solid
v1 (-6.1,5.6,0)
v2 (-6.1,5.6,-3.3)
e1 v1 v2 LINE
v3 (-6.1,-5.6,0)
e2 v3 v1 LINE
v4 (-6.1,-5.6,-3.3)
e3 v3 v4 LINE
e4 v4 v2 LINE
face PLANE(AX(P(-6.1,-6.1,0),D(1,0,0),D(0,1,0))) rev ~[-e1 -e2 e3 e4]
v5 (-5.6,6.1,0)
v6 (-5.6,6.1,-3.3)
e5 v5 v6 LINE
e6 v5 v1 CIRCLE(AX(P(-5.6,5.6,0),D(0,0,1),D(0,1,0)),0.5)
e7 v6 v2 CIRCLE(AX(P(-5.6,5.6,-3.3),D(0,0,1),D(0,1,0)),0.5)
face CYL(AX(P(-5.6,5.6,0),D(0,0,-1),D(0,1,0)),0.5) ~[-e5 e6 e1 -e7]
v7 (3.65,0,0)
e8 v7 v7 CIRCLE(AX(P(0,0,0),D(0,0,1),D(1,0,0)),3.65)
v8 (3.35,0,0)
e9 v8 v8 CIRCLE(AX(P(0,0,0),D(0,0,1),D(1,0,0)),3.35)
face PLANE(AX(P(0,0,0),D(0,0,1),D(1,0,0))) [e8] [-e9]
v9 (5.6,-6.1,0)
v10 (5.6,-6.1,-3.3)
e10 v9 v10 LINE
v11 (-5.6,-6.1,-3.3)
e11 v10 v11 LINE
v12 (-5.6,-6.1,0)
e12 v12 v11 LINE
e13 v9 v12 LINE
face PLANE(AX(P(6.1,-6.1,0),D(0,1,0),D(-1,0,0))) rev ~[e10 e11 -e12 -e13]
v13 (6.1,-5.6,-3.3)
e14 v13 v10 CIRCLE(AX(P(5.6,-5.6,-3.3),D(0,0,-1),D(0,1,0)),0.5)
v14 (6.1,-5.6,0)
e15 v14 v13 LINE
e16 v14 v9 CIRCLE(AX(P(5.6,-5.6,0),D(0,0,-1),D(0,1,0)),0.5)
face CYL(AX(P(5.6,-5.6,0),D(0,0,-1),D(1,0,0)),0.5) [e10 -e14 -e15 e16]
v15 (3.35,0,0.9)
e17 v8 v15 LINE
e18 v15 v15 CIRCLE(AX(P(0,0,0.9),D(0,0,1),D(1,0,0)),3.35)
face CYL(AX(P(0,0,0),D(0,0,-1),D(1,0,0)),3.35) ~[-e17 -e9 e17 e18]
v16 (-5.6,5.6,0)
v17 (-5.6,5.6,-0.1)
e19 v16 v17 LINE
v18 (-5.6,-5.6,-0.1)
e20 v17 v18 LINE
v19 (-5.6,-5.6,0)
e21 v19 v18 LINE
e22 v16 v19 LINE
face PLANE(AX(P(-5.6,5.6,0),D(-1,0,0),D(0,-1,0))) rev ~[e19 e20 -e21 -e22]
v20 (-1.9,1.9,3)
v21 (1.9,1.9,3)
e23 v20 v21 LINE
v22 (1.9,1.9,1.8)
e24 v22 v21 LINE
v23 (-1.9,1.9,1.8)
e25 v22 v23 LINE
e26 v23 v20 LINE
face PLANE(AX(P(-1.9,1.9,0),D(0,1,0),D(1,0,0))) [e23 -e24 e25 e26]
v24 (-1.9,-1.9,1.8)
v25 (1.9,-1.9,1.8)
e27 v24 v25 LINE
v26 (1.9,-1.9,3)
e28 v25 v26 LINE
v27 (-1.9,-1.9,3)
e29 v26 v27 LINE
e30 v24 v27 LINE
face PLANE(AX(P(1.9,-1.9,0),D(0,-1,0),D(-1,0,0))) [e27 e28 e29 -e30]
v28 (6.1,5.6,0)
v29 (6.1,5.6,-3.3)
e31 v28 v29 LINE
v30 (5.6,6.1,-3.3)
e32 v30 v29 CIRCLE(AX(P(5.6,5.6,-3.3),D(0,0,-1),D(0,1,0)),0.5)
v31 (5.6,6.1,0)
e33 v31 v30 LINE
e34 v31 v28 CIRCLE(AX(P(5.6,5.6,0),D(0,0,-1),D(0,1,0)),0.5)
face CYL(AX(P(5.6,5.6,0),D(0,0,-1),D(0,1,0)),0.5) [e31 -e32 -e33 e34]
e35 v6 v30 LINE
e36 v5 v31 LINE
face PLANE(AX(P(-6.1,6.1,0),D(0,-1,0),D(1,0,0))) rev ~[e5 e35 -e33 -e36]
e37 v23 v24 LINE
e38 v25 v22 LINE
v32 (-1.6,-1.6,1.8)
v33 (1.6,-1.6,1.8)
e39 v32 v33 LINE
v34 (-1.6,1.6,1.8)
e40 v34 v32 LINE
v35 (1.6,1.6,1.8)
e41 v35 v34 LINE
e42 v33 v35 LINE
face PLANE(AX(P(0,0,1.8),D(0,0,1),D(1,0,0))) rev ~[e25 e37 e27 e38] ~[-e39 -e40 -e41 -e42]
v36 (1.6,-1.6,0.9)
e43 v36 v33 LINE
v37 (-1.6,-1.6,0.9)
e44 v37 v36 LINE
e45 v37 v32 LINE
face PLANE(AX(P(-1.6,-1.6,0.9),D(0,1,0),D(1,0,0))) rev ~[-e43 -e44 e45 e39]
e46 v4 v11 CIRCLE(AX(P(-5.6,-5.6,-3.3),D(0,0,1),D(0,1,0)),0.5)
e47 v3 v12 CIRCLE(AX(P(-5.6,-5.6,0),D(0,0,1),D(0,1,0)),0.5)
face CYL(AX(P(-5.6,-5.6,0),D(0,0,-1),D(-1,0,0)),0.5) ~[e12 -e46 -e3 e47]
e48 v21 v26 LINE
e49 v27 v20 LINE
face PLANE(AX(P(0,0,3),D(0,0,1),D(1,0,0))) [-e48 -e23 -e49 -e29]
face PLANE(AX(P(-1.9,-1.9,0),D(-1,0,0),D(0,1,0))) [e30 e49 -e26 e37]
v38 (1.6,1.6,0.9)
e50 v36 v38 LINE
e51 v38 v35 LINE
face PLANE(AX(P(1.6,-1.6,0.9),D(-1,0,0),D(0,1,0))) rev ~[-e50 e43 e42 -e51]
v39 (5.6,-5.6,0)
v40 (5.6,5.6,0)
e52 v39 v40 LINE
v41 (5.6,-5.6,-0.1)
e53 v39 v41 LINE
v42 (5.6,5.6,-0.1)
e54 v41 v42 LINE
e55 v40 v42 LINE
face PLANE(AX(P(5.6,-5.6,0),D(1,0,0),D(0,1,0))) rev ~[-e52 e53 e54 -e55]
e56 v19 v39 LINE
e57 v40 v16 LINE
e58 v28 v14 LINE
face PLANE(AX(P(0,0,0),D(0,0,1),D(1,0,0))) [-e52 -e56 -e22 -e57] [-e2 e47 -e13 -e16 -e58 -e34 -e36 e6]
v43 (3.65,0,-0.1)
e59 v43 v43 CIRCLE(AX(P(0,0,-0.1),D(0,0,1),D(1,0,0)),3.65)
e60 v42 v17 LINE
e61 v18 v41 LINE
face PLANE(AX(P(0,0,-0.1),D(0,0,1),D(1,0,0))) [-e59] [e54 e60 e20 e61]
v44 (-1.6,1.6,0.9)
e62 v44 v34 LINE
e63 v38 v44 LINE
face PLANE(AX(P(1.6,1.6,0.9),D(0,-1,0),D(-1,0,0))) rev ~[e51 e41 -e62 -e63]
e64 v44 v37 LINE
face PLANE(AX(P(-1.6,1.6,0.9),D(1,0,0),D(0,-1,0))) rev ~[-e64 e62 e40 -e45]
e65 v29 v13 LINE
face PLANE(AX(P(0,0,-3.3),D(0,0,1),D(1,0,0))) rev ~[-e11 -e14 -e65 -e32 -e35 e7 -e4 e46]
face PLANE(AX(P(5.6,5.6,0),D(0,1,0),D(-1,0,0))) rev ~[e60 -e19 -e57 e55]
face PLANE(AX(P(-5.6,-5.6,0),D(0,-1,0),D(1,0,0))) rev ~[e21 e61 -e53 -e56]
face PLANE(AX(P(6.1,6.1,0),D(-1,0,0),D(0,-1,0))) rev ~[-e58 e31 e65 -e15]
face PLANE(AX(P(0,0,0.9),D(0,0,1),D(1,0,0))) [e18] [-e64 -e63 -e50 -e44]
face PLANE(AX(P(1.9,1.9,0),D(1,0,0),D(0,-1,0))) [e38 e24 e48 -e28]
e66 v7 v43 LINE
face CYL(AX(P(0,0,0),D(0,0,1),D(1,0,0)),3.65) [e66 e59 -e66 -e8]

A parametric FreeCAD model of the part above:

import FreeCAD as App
import Part
import Sketcher
from FreeCAD import Vector


def edges_at(feature, points):
    """Names of the edges that pass closest to the given points."""
    edges = feature.Shape.Edges
    near = lambda p: min(range(len(edges)), key=lambda i: edges[i].distToShape(Part.Vertex(*p))[0])
    return sorted({f"Edge{near(p) + 1}" for p in points})

doc = App.newDocument("Part")
body = doc.addObject("PartDesign::Body", "Body")

# Sketch on XY plane
sketch1 = body.newObject("Sketcher::SketchObject", "Sketch")
sketch1.AttachmentSupport = (doc.getObject("XY_Plane"), [""])
sketch1.MapMode = "FlatFace"
sketch1.addGeometry(Part.LineSegment(Vector(6.1, 6.1, 0), Vector(-6.1, 6.1, 0)), False)
sketch1.addGeometry(Part.LineSegment(Vector(-6.1, 6.1, 0), Vector(-6.1, -6.1, 0)), False)
sketch1.addGeometry(Part.LineSegment(Vector(-6.1, -6.1, 0), Vector(6.1, -6.1, 0)), False)
sketch1.addGeometry(Part.LineSegment(Vector(6.1, -6.1, 0), Vector(6.1, 6.1, 0)), False)
sketch1.addConstraint(Sketcher.Constraint("Coincident", 0, 2, 1, 1))
sketch1.addConstraint(Sketcher.Constraint("Coincident", 1, 2, 2, 1))
sketch1.addConstraint(Sketcher.Constraint("Coincident", 2, 2, 3, 1))
sketch1.addConstraint(Sketcher.Constraint("Coincident", 3, 2, 0, 1))
sketch1.addConstraint(Sketcher.Constraint("Horizontal", 0))
sketch1.addConstraint(Sketcher.Constraint("Vertical", 1))
sketch1.addConstraint(Sketcher.Constraint("Horizontal", 2))
sketch1.addConstraint(Sketcher.Constraint("Vertical", 3))
sketch1.addConstraint(Sketcher.Constraint("Symmetric", 0, 2, 2, 2, -1, 1))
sketch1.addConstraint(Sketcher.Constraint("Equal", 2, 1))
sketch1.addConstraint(Sketcher.Constraint("DistanceX", 0, 2, 0, 1, 12.2))
pad1 = body.newObject("PartDesign::Pad", "Pad")
pad1.Profile = sketch1
pad1.Length = 3.3
pad1.Reversed = True

# Sketch on XY plane
sketch2 = body.newObject("Sketcher::SketchObject", "Sketch001")
sketch2.AttachmentSupport = (doc.getObject("XY_Plane"), [""])
sketch2.MapMode = "FlatFace"
sketch2.addGeometry(Part.Circle(Vector(0, 0, 0), Vector(0, 0, 1), 3.35), False)
sketch2.addConstraint(Sketcher.Constraint("Coincident", 0, 3, -1, 1))
sketch2.addConstraint(Sketcher.Constraint("Diameter", 0, 6.7))
pad2 = body.newObject("PartDesign::Pad", "Pad001")
pad2.Profile = sketch2
pad2.Length = 0.9

# Sketch on XY plane
sketch3 = body.newObject("Sketcher::SketchObject", "Sketch002")
sketch3.AttachmentSupport = (doc.getObject("XY_Plane"), [""])
sketch3.MapMode = "FlatFace"
sketch3.addGeometry(Part.LineSegment(Vector(1.9, 1.9, 0), Vector(-1.9, 1.9, 0)), False)
sketch3.addGeometry(Part.LineSegment(Vector(-1.9, 1.9, 0), Vector(-1.9, -1.9, 0)), False)
sketch3.addGeometry(Part.LineSegment(Vector(-1.9, -1.9, 0), Vector(1.9, -1.9, 0)), False)
sketch3.addGeometry(Part.LineSegment(Vector(1.9, -1.9, 0), Vector(1.9, 1.9, 0)), False)
sketch3.addConstraint(Sketcher.Constraint("Coincident", 0, 2, 1, 1))
sketch3.addConstraint(Sketcher.Constraint("Coincident", 1, 2, 2, 1))
sketch3.addConstraint(Sketcher.Constraint("Coincident", 2, 2, 3, 1))
sketch3.addConstraint(Sketcher.Constraint("Coincident", 3, 2, 0, 1))
sketch3.addConstraint(Sketcher.Constraint("Horizontal", 0))
sketch3.addConstraint(Sketcher.Constraint("Vertical", 1))
sketch3.addConstraint(Sketcher.Constraint("Horizontal", 2))
sketch3.addConstraint(Sketcher.Constraint("Vertical", 3))
sketch3.addConstraint(Sketcher.Constraint("Symmetric", 0, 2, 2, 2, -1, 1))
sketch3.addConstraint(Sketcher.Constraint("Equal", 2, 1))
sketch3.addConstraint(Sketcher.Constraint("DistanceX", 0, 2, 0, 1, 3.8))
pad3 = body.newObject("PartDesign::Pad", "Pad002")
pad3.Profile = sketch3
pad3.Length = 3

# Sketch on XY plane
sketch4 = body.newObject("Sketcher::SketchObject", "Sketch003")
sketch4.AttachmentSupport = (doc.getObject("XY_Plane"), [""])
sketch4.MapMode = "FlatFace"
sketch4.AttachmentOffset = App.Placement(Vector(0, 0, 0.9), App.Rotation())
sketch4.addGeometry(Part.LineSegment(Vector(-1.9, 1.9, 0), Vector(-1.9, -1.9, 0)), False)
sketch4.addGeometry(Part.LineSegment(Vector(-1.9, -1.9, 0), Vector(1.9, -1.9, 0)), False)
sketch4.addGeometry(Part.LineSegment(Vector(1.9, -1.9, 0), Vector(1.9, 1.9, 0)), False)
sketch4.addGeometry(Part.LineSegment(Vector(1.9, 1.9, 0), Vector(-1.9, 1.9, 0)), False)
sketch4.addGeometry(Part.LineSegment(Vector(1.6, -1.6, 0), Vector(-1.6, -1.6, 0)), False)
sketch4.addGeometry(Part.LineSegment(Vector(-1.6, -1.6, 0), Vector(-1.6, 1.6, 0)), False)
sketch4.addGeometry(Part.LineSegment(Vector(-1.6, 1.6, 0), Vector(1.6, 1.6, 0)), False)
sketch4.addGeometry(Part.LineSegment(Vector(1.6, 1.6, 0), Vector(1.6, -1.6, 0)), False)
sketch4.addConstraint(Sketcher.Constraint("Coincident", 0, 2, 1, 1))
sketch4.addConstraint(Sketcher.Constraint("Coincident", 1, 2, 2, 1))
sketch4.addConstraint(Sketcher.Constraint("Coincident", 2, 2, 3, 1))
sketch4.addConstraint(Sketcher.Constraint("Coincident", 3, 2, 0, 1))
sketch4.addConstraint(Sketcher.Constraint("Coincident", 4, 2, 5, 1))
sketch4.addConstraint(Sketcher.Constraint("Coincident", 5, 2, 6, 1))
sketch4.addConstraint(Sketcher.Constraint("Coincident", 6, 2, 7, 1))
sketch4.addConstraint(Sketcher.Constraint("Coincident", 7, 2, 4, 1))
sketch4.addConstraint(Sketcher.Constraint("Vertical", 0))
sketch4.addConstraint(Sketcher.Constraint("Horizontal", 1))
sketch4.addConstraint(Sketcher.Constraint("Vertical", 2))
sketch4.addConstraint(Sketcher.Constraint("Horizontal", 3))
sketch4.addConstraint(Sketcher.Constraint("Horizontal", 4))
sketch4.addConstraint(Sketcher.Constraint("Vertical", 5))
sketch4.addConstraint(Sketcher.Constraint("Horizontal", 6))
sketch4.addConstraint(Sketcher.Constraint("Vertical", 7))
sketch4.addConstraint(Sketcher.Constraint("Symmetric", 0, 2, 2, 2, -1, 1))
sketch4.addConstraint(Sketcher.Constraint("Symmetric", 4, 2, 6, 2, -1, 1))
sketch4.addConstraint(Sketcher.Constraint("Equal", 3, 0))
sketch4.addConstraint(Sketcher.Constraint("Equal", 6, 5))
sketch4.addConstraint(Sketcher.Constraint("DistanceX", 4, 2, 4, 1, 3.2))
sketch4.addConstraint(Sketcher.Constraint("DistanceX", 1, 1, 1, 2, 3.8))
pocket1 = body.newObject("PartDesign::Pocket", "Pocket")
pocket1.Profile = sketch4
pocket1.Length = 0.9
pocket1.Reversed = True
doc.recompute()

fillet = body.newObject("PartDesign::Fillet", "Fillet")
fillet.Base = (pocket1, edges_at(pocket1, [
    (6.1, 6.1, -1.65),
    (6.1, -6.1, -1.65),
    (-6.1, -6.1, -1.65),
    (-6.1, 6.1, -1.65),
]))
fillet.Radius = 0.5

# Sketch on XY plane
sketch5 = body.newObject("Sketcher::SketchObject", "Sketch004")
sketch5.AttachmentSupport = (doc.getObject("XY_Plane"), [""])
sketch5.MapMode = "FlatFace"
sketch5.addGeometry(Part.LineSegment(Vector(5.6, 5.6, 0), Vector(-5.6, 5.6, 0)), False)
sketch5.addGeometry(Part.LineSegment(Vector(-5.6, 5.6, 0), Vector(-5.6, -5.6, 0)), False)
sketch5.addGeometry(Part.LineSegment(Vector(-5.6, -5.6, 0), Vector(5.6, -5.6, 0)), False)
sketch5.addGeometry(Part.LineSegment(Vector(5.6, -5.6, 0), Vector(5.6, 5.6, 0)), False)
sketch5.addGeometry(Part.Circle(Vector(0, 0, 0), Vector(0, 0, 1), 3.65), False)
sketch5.addConstraint(Sketcher.Constraint("Coincident", 0, 2, 1, 1))
sketch5.addConstraint(Sketcher.Constraint("Coincident", 1, 2, 2, 1))
sketch5.addConstraint(Sketcher.Constraint("Coincident", 2, 2, 3, 1))
sketch5.addConstraint(Sketcher.Constraint("Coincident", 3, 2, 0, 1))
sketch5.addConstraint(Sketcher.Constraint("Horizontal", 0))
sketch5.addConstraint(Sketcher.Constraint("Vertical", 1))
sketch5.addConstraint(Sketcher.Constraint("Horizontal", 2))
sketch5.addConstraint(Sketcher.Constraint("Vertical", 3))
sketch5.addConstraint(Sketcher.Constraint("Coincident", 4, 3, -1, 1))
sketch5.addConstraint(Sketcher.Constraint("Symmetric", 0, 2, 2, 2, -1, 1))
sketch5.addConstraint(Sketcher.Constraint("Equal", 2, 1))
sketch5.addConstraint(Sketcher.Constraint("Diameter", 4, 7.3))
sketch5.addConstraint(Sketcher.Constraint("DistanceX", 0, 2, 0, 1, 11.2))
pocket2 = body.newObject("PartDesign::Pocket", "Pocket001")
pocket2.Profile = sketch5
pocket2.Length = 0.1

doc.recompute()
